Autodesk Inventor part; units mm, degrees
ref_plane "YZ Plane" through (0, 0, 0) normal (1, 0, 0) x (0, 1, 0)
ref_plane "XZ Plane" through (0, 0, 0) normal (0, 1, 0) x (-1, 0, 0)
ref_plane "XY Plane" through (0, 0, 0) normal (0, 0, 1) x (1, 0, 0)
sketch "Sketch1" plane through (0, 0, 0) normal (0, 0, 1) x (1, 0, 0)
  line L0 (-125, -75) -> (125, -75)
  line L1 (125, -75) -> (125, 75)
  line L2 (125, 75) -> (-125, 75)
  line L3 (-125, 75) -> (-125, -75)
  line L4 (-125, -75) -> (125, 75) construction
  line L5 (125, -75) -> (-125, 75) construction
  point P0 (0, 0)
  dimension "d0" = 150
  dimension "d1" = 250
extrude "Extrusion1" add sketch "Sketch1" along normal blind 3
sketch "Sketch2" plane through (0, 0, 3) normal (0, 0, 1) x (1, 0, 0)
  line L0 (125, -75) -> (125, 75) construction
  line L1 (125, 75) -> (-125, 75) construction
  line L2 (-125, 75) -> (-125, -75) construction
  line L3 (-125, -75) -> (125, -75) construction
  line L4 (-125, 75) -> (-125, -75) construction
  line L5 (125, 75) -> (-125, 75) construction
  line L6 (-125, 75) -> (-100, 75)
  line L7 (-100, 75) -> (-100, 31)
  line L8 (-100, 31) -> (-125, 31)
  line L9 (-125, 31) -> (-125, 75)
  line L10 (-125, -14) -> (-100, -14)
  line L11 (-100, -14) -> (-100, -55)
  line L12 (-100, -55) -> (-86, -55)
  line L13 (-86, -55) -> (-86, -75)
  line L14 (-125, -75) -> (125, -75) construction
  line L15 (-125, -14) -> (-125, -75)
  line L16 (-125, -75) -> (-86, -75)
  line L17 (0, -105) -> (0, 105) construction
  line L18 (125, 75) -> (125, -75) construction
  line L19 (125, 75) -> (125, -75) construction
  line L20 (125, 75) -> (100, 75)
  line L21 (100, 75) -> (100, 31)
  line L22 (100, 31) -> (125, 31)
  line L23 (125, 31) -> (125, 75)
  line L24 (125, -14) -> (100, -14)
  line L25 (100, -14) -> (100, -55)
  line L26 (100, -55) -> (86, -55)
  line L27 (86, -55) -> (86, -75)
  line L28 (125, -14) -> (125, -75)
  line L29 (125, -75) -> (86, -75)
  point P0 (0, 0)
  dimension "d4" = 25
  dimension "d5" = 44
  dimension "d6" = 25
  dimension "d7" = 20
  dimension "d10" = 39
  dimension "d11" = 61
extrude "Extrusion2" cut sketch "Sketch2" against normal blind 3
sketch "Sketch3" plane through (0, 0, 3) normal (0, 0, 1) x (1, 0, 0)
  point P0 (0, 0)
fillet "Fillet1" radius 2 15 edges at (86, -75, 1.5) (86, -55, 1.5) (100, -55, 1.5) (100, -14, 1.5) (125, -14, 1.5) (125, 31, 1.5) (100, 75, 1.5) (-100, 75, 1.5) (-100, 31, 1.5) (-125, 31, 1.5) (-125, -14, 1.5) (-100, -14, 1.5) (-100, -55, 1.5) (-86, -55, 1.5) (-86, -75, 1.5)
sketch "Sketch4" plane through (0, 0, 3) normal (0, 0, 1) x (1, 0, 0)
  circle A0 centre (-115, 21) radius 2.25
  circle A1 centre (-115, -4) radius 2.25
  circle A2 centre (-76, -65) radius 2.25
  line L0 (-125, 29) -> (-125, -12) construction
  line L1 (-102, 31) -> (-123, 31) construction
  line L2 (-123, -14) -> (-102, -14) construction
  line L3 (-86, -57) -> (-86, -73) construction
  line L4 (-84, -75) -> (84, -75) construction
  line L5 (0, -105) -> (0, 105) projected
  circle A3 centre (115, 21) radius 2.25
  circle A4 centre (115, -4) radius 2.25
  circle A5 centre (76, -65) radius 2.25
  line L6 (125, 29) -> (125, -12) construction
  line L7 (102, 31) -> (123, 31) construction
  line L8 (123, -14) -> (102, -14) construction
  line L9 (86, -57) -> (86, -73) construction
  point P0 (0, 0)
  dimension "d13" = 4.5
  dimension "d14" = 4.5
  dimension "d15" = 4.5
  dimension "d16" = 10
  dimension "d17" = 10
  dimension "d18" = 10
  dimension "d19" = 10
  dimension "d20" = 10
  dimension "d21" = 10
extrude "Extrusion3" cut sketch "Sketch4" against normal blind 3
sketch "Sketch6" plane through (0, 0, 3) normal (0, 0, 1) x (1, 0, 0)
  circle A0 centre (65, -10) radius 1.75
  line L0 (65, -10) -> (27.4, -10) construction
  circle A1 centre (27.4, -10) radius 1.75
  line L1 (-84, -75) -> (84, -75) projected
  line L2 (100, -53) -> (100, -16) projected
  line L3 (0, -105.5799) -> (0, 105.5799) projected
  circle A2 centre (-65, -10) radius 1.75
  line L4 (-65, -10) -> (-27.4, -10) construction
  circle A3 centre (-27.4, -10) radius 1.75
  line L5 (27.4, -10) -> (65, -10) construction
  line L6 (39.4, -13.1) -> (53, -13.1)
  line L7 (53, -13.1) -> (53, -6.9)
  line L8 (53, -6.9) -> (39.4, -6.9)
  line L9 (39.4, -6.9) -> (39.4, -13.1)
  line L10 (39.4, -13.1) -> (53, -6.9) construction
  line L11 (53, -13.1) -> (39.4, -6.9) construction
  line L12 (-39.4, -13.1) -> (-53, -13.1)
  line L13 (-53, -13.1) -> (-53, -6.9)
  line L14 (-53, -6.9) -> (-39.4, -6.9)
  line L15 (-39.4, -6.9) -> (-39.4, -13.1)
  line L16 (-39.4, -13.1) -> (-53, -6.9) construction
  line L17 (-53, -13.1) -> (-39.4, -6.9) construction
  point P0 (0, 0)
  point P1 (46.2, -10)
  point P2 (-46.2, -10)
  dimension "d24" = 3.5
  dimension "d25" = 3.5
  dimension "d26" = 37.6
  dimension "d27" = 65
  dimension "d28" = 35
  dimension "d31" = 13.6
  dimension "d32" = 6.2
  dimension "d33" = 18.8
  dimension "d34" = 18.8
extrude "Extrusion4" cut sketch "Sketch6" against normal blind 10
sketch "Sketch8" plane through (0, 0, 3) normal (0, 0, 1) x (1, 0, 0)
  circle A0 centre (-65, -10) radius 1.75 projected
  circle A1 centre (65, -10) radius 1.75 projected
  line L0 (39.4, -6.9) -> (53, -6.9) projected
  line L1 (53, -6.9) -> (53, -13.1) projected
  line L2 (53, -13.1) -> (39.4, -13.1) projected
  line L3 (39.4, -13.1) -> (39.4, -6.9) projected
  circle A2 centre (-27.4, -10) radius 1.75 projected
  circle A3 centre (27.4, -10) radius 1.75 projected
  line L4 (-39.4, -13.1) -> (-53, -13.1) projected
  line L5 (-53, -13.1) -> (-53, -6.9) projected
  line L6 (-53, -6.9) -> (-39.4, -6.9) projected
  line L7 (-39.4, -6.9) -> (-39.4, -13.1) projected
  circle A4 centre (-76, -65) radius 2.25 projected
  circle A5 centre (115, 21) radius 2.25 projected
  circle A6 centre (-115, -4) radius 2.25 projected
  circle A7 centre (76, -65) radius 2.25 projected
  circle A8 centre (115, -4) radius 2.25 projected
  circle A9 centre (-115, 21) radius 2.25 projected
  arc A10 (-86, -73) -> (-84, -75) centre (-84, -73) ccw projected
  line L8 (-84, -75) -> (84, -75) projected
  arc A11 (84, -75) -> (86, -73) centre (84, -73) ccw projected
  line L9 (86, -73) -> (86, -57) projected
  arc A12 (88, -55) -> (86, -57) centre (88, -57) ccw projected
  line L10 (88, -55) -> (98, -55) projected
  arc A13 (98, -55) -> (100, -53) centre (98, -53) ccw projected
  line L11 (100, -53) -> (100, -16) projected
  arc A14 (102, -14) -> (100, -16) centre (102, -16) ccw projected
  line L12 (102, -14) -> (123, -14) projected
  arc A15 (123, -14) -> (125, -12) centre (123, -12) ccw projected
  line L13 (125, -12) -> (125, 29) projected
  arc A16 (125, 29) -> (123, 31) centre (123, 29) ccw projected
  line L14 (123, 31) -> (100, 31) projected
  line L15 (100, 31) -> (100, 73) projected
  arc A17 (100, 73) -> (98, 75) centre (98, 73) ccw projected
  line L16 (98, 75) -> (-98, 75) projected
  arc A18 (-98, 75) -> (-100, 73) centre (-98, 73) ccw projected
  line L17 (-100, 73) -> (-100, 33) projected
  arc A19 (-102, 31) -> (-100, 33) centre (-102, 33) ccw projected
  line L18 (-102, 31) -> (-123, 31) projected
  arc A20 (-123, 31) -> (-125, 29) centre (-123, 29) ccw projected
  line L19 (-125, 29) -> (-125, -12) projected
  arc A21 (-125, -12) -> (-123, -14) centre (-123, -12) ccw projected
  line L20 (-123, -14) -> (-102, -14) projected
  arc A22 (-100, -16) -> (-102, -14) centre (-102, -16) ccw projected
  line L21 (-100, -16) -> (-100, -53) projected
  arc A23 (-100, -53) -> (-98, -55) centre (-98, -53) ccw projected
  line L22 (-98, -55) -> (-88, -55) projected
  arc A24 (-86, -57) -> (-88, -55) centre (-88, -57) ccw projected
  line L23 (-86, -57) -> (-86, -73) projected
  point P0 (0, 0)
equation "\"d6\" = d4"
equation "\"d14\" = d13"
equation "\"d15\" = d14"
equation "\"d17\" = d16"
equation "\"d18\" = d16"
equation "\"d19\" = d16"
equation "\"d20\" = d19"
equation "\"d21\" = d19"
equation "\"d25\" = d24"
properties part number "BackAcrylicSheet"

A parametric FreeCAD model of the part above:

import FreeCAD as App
import Part
import Sketcher
from FreeCAD import Vector
Q = App.Units.Quantity


def edges_at(feature, points):
    """Names of the edges that pass closest to the given points."""
    edges = feature.Shape.Edges
    near = lambda p: min(range(len(edges)), key=lambda i: edges[i].distToShape(Part.Vertex(*p))[0])
    return sorted({f"Edge{near(p) + 1}" for p in points})

doc = App.newDocument("Part")
params = doc.addObject("Spreadsheet::Sheet", "Params")
for row, (alias, value) in enumerate([
    ("sketch1_width", "250 mm"),
    ("sketch1_height", "150 mm"),
    ("pad1_length", "3 mm"),
    ("sketch2_width", "25 mm"),
    ("sketch2_width2", "39 mm"),
    ("sketch2_height", "44 mm"),
    ("sketch2_height2", "61 mm"),
    ("sketch2_height3", "20 mm"),
    ("pocket1_length", "3 mm"),
    ("fillet_radius", "2 mm"),
    ("sketch3_diameter", "4.5 mm"),
    ("pocket2_length", "3 mm"),
    ("sketch4_diameter", "3.5 mm"),
    ("sketch4_width", "13.6 mm"),
    ("sketch4_height", "6.2 mm"),
    ("pocket3_length", "10 mm"),
], start=1):
    params.set(f"A{row}", alias)
    params.set(f"B{row}", "=" + value)
    params.setAlias(f"B{row}", alias)

body = doc.addObject("PartDesign::Body", "Body")

# Sketch on XY plane
sketch1 = doc.addObject("Sketcher::SketchObject", "Sketch")
body.addObject(sketch1)
sketch1.AttachmentSupport = (doc.XY_Plane, [""])
sketch1.MapMode = "FlatFace"
sketch1.addGeometry([
    Part.LineSegment(Vector(-125, 75, 0), Vector(-125, -75, 0)),
    Part.LineSegment(Vector(-125, -75, 0), Vector(125, -75, 0)),
    Part.LineSegment(Vector(125, -75, 0), Vector(125, 75, 0)),
    Part.LineSegment(Vector(125, 75, 0), Vector(-125, 75, 0)),
], False)
sketch1.addConstraint([
    Sketcher.Constraint("Coincident", 0, 2, 1, 1),
    Sketcher.Constraint("Coincident", 1, 2, 2, 1),
    Sketcher.Constraint("Coincident", 2, 2, 3, 1),
    Sketcher.Constraint("Coincident", 3, 2, 0, 1),
    Sketcher.Constraint("Vertical", 0),
    Sketcher.Constraint("Horizontal", 1),
    Sketcher.Constraint("Vertical", 2),
    Sketcher.Constraint("Horizontal", 3),
    Sketcher.Constraint("Symmetric", 0, 2, 2, 2, -1, 1),
    Sketcher.Constraint("DistanceX", 1, 1, 1, 2, Q("250 mm")),
    Sketcher.Constraint("DistanceY", 0, 2, 0, 1, Q("150 mm")),
])
sketch1.setExpression("Constraints[9]", "Params.sketch1_width")
sketch1.setExpression("Constraints[10]", "Params.sketch1_height")
pad1 = doc.addObject("PartDesign::Pad", "Pad")
body.addObject(pad1)
pad1.Profile = sketch1
pad1.setExpression("Length", "Params.pad1_length")

# Sketch on XY plane
sketch2 = doc.addObject("Sketcher::SketchObject", "Sketch001")
body.addObject(sketch2)
sketch2.AttachmentSupport = (doc.XY_Plane, [""])
sketch2.MapMode = "FlatFace"
sketch2.AttachmentOffset = App.Placement(Vector(0, 0, 3), App.Rotation())
sketch2.addGeometry([
    Part.LineSegment(Vector(-100, 75, 0), Vector(-125, 75, 0)),  # 0
    Part.LineSegment(Vector(-125, 75, 0), Vector(-125, 31, 0)),  # 1
    Part.LineSegment(Vector(-125, 31, 0), Vector(-100, 31, 0)),  # 2
    Part.LineSegment(Vector(-100, 31, 0), Vector(-100, 75, 0)),  # 3
    Part.LineSegment(Vector(-100, -14, 0), Vector(-125, -14, 0)),  # 4
    Part.LineSegment(Vector(-125, -14, 0), Vector(-125, -75, 0)),  # 5
    Part.LineSegment(Vector(-125, -75, 0), Vector(-86, -75, 0)),  # 6
    Part.LineSegment(Vector(-86, -75, 0), Vector(-86, -55, 0)),  # 7
    Part.LineSegment(Vector(-86, -55, 0), Vector(-100, -55, 0)),  # 8
    Part.LineSegment(Vector(-100, -55, 0), Vector(-100, -14, 0)),  # 9
    Part.LineSegment(Vector(125, 31, 0), Vector(125, 75, 0)),  # 10
    Part.LineSegment(Vector(125, 75, 0), Vector(100, 75, 0)),  # 11
    Part.LineSegment(Vector(100, 75, 0), Vector(100, 31, 0)),  # 12
    Part.LineSegment(Vector(100, 31, 0), Vector(125, 31, 0)),  # 13
    Part.LineSegment(Vector(125, -75, 0), Vector(125, -14, 0)),  # 14
    Part.LineSegment(Vector(125, -14, 0), Vector(100, -14, 0)),  # 15
    Part.LineSegment(Vector(100, -14, 0), Vector(100, -55, 0)),  # 16
    Part.LineSegment(Vector(100, -55, 0), Vector(86, -55, 0)),  # 17
    Part.LineSegment(Vector(86, -55, 0), Vector(86, -75, 0)),  # 18
    Part.LineSegment(Vector(86, -75, 0), Vector(125, -75, 0)),  # 19
], False)
sketch2.addConstraint([
    Sketcher.Constraint("Coincident", 0, 2, 1, 1),
    Sketcher.Constraint("Coincident", 1, 2, 2, 1),
    Sketcher.Constraint("Coincident", 2, 2, 3, 1),
    Sketcher.Constraint("Coincident", 3, 2, 0, 1),
    Sketcher.Constraint("Coincident", 4, 2, 5, 1),
    Sketcher.Constraint("Coincident", 5, 2, 6, 1),
    Sketcher.Constraint("Coincident", 6, 2, 7, 1),
    Sketcher.Constraint("Coincident", 7, 2, 8, 1),
    Sketcher.Constraint("Coincident", 8, 2, 9, 1),
    Sketcher.Constraint("Coincident", 9, 2, 4, 1),
    Sketcher.Constraint("Coincident", 10, 2, 11, 1),
    Sketcher.Constraint("Coincident", 11, 2, 12, 1),
    Sketcher.Constraint("Coincident", 12, 2, 13, 1),
    Sketcher.Constraint("Coincident", 13, 2, 10, 1),
    Sketcher.Constraint("Coincident", 14, 2, 15, 1),
    Sketcher.Constraint("Coincident", 15, 2, 16, 1),
    Sketcher.Constraint("Coincident", 16, 2, 17, 1),
    Sketcher.Constraint("Coincident", 17, 2, 18, 1),
    Sketcher.Constraint("Coincident", 18, 2, 19, 1),
    Sketcher.Constraint("Coincident", 19, 2, 14, 1),
    Sketcher.Constraint("Horizontal", 0),
    Sketcher.Constraint("Vertical", 1),
    Sketcher.Constraint("Horizontal", 2),
    Sketcher.Constraint("Vertical", 3),
    Sketcher.Constraint("Horizontal", 4),
    Sketcher.Constraint("Vertical", 5),
    Sketcher.Constraint("Horizontal", 6),
    Sketcher.Constraint("Vertical", 7),
    Sketcher.Constraint("Horizontal", 8),
    Sketcher.Constraint("Vertical", 9),
    Sketcher.Constraint("Vertical", 10),
    Sketcher.Constraint("Horizontal", 11),
    Sketcher.Constraint("Vertical", 12),
    Sketcher.Constraint("Horizontal", 13),
    Sketcher.Constraint("Vertical", 14),
    Sketcher.Constraint("Horizontal", 15),
    Sketcher.Constraint("Vertical", 16),
    Sketcher.Constraint("Horizontal", 17),
    Sketcher.Constraint("Vertical", 18),
    Sketcher.Constraint("Horizontal", 19),
    Sketcher.Constraint("Symmetric", 5, 2, 10, 2, -1, 1),
    Sketcher.Constraint("Symmetric", 0, 2, 19, 2, -1, 1),
    Sketcher.Constraint("Symmetric", 0, 2, 10, 2, -2),
    Sketcher.Constraint("Symmetric", 2, 2, 12, 2, -2),
    Sketcher.Constraint("Symmetric", 9, 2, 15, 2, -2),
    Sketcher.Constraint("Symmetric", 7, 2, 17, 2, -2),
    Sketcher.Constraint("Vertical", 3, 2, 8, 2),
    Sketcher.Constraint("DistanceX", 0, 2, 0, 1, Q("25 mm")),
    Sketcher.Constraint("DistanceX", 6, 1, 6, 2, Q("39 mm")),
    Sketcher.Constraint("DistanceY", 1, 2, 1, 1, Q("44 mm")),
    Sketcher.Constraint("DistanceY", 5, 2, 5, 1, Q("61 mm")),
    Sketcher.Constraint("DistanceY", 7, 1, 7, 2, Q("20 mm")),
    Sketcher.Constraint("DistanceX", 0, 2, -1, 1, Q("125 mm")),
    Sketcher.Constraint("DistanceY", -1, 1, 0, 2, Q("75 mm")),
])
sketch2.setExpression("Constraints[47]", "Params.sketch2_width")
sketch2.setExpression("Constraints[48]", "Params.sketch2_width2")
sketch2.setExpression("Constraints[49]", "Params.sketch2_height")
sketch2.setExpression("Constraints[50]", "Params.sketch2_height2")
sketch2.setExpression("Constraints[51]", "Params.sketch2_height3")
pocket1 = doc.addObject("PartDesign::Pocket", "Pocket")
body.addObject(pocket1)
pocket1.Profile = sketch2
pocket1.setExpression("Length", "Params.pocket1_length")
doc.recompute()

fillet = doc.addObject("PartDesign::Fillet", "Fillet")
body.addObject(fillet)
fillet.Base = (pocket1, edges_at(pocket1, [
    (86, -75, 1.5),
    (86, -55, 1.5),
    (100, -55, 1.5),
    (100, -14, 1.5),
    (125, -14, 1.5),
    (125, 31, 1.5),
    (100, 75, 1.5),
    (-100, 75, 1.5),
    (-100, 31, 1.5),
    (-125, 31, 1.5),
    (-125, -14, 1.5),
    (-100, -14, 1.5),
    (-100, -55, 1.5),
    (-86, -55, 1.5),
    (-86, -75, 1.5),
]))
fillet.setExpression("Radius", "Params.fillet_radius")

# Sketch on XY plane
sketch3 = doc.addObject("Sketcher::SketchObject", "Sketch002")
body.addObject(sketch3)
sketch3.AttachmentSupport = (doc.XY_Plane, [""])
sketch3.MapMode = "FlatFace"
sketch3.AttachmentOffset = App.Placement(Vector(0, 0, 3), App.Rotation())
sketch3.addGeometry([
    Part.Circle(Vector(-115, 21, 0), Vector(0, 0, 1), 2.25),  # 0
    Part.Circle(Vector(-115, -4, 0), Vector(0, 0, 1), 2.25),  # 1
    Part.Circle(Vector(-76, -65, 0), Vector(0, 0, 1), 2.25),  # 2
    Part.Circle(Vector(115, 21, 0), Vector(0, 0, 1), 2.25),  # 3
    Part.Circle(Vector(115, -4, 0), Vector(0, 0, 1), 2.25),  # 4
    Part.Circle(Vector(76, -65, 0), Vector(0, 0, 1), 2.25),  # 5
], False)
sketch3.addConstraint([
    Sketcher.Constraint("Equal", 0, 1),
    Sketcher.Constraint("Equal", 1, 2),
    Sketcher.Constraint("Equal", 2, 3),
    Sketcher.Constraint("Equal", 3, 4),
    Sketcher.Constraint("Equal", 4, 5),
    Sketcher.Constraint("Symmetric", 0, 3, 3, 3, -2),
    Sketcher.Constraint("Symmetric", 1, 3, 4, 3, -2),
    Sketcher.Constraint("Symmetric", 2, 3, 5, 3, -2),
    Sketcher.Constraint("Vertical", 0, 3, 1, 3),
    Sketcher.Constraint("Diameter", 0, Q("4.5 mm")),
    Sketcher.Constraint("DistanceX", 0, 3, -1, 1, Q("115 mm")),
    Sketcher.Constraint("DistanceY", -1, 1, 0, 3, Q("21 mm")),
    Sketcher.Constraint("DistanceY", 1, 3, -1, 1, Q("4 mm")),
    Sketcher.Constraint("DistanceX", 2, 3, -1, 1, Q("76 mm")),
    Sketcher.Constraint("DistanceY", 2, 3, -1, 1, Q("65 mm")),
])
sketch3.setExpression("Constraints[9]", "Params.sketch3_diameter")
pocket2 = doc.addObject("PartDesign::Pocket", "Pocket001")
body.addObject(pocket2)
pocket2.Profile = sketch3
pocket2.setExpression("Length", "Params.pocket2_length")

# Sketch on XY plane
sketch4 = doc.addObject("Sketcher::SketchObject", "Sketch003")
body.addObject(sketch4)
sketch4.AttachmentSupport = (doc.XY_Plane, [""])
sketch4.MapMode = "FlatFace"
sketch4.AttachmentOffset = App.Placement(Vector(0, 0, 3), App.Rotation())
sketch4.addGeometry([
    Part.Circle(Vector(65, -10, 0), Vector(0, 0, 1), 1.75),  # 0
    Part.Circle(Vector(27.4, -10, 0), Vector(0, 0, 1), 1.75),  # 1
    Part.Circle(Vector(-65, -10, 0), Vector(0, 0, 1), 1.75),  # 2
    Part.Circle(Vector(-27.4, -10, 0), Vector(0, 0, 1), 1.75),  # 3
    Part.LineSegment(Vector(39.4, -6.9, 0), Vector(39.4, -13.1, 0)),  # 4
    Part.LineSegment(Vector(39.4, -13.1, 0), Vector(53, -13.1, 0)),  # 5
    Part.LineSegment(Vector(53, -13.1, 0), Vector(53, -6.9, 0)),  # 6
    Part.LineSegment(Vector(53, -6.9, 0), Vector(39.4, -6.9, 0)),  # 7
    Part.LineSegment(Vector(-53, -13.1, 0), Vector(-39.4, -13.1, 0)),  # 8
    Part.LineSegment(Vector(-39.4, -13.1, 0), Vector(-39.4, -6.9, 0)),  # 9
    Part.LineSegment(Vector(-39.4, -6.9, 0), Vector(-53, -6.9, 0)),  # 10
    Part.LineSegment(Vector(-53, -6.9, 0), Vector(-53, -13.1, 0)),  # 11
], False)
sketch4.addConstraint([
    Sketcher.Constraint("Coincident", 4, 2, 5, 1),
    Sketcher.Constraint("Coincident", 5, 2, 6, 1),
    Sketcher.Constraint("Coincident", 6, 2, 7, 1),
    Sketcher.Constraint("Coincident", 7, 2, 4, 1),
    Sketcher.Constraint("Coincident", 8, 2, 9, 1),
    Sketcher.Constraint("Coincident", 9, 2, 10, 1),
    Sketcher.Constraint("Coincident", 10, 2, 11, 1),
    Sketcher.Constraint("Coincident", 11, 2, 8, 1),
    Sketcher.Constraint("Vertical", 4),
    Sketcher.Constraint("Horizontal", 5),
    Sketcher.Constraint("Vertical", 6),
    Sketcher.Constraint("Horizontal", 7),
    Sketcher.Constraint("Horizontal", 8),
    Sketcher.Constraint("Vertical", 9),
    Sketcher.Constraint("Horizontal", 10),
    Sketcher.Constraint("Vertical", 11),
    Sketcher.Constraint("Equal", 0, 1),
    Sketcher.Constraint("Equal", 1, 2),
    Sketcher.Constraint("Equal", 2, 3),
    Sketcher.Constraint("Symmetric", 0, 3, 2, 3, -2),
    Sketcher.Constraint("Symmetric", 1, 3, 3, 3, -2),
    Sketcher.Constraint("Symmetric", 4, 2, 8, 2, -2),
    Sketcher.Constraint("Symmetric", 6, 2, 10, 2, -2),
    Sketcher.Constraint("Horizontal", 0, 3, 1, 3),
    Sketcher.Constraint("Diameter", 0, Q("3.5 mm")),
    Sketcher.Constraint("DistanceX", 5, 1, 5, 2, Q("13.6 mm")),
    Sketcher.Constraint("DistanceY", 4, 2, 4, 1, Q("6.2 mm")),
    Sketcher.Constraint("DistanceX", -1, 1, 0, 3, Q("65 mm")),
    Sketcher.Constraint("DistanceX", 1, 3, 0, 3, Q("37.6 mm")),
    Sketcher.Constraint("DistanceY", 0, 3, -1, 1, Q("10 mm")),
    Sketcher.Constraint("DistanceX", -1, 1, 5, 2, Q("53 mm")),
    Sketcher.Constraint("DistanceY", 4, 2, -1, 1, Q("13.1 mm")),
])
sketch4.setExpression("Constraints[24]", "Params.sketch4_diameter")
sketch4.setExpression("Constraints[25]", "Params.sketch4_width")
sketch4.setExpression("Constraints[26]", "Params.sketch4_height")
pocket3 = doc.addObject("PartDesign::Pocket", "Pocket002")
body.addObject(pocket3)
pocket3.Profile = sketch4
pocket3.setExpression("Length", "Params.pocket3_length")

doc.recompute()
